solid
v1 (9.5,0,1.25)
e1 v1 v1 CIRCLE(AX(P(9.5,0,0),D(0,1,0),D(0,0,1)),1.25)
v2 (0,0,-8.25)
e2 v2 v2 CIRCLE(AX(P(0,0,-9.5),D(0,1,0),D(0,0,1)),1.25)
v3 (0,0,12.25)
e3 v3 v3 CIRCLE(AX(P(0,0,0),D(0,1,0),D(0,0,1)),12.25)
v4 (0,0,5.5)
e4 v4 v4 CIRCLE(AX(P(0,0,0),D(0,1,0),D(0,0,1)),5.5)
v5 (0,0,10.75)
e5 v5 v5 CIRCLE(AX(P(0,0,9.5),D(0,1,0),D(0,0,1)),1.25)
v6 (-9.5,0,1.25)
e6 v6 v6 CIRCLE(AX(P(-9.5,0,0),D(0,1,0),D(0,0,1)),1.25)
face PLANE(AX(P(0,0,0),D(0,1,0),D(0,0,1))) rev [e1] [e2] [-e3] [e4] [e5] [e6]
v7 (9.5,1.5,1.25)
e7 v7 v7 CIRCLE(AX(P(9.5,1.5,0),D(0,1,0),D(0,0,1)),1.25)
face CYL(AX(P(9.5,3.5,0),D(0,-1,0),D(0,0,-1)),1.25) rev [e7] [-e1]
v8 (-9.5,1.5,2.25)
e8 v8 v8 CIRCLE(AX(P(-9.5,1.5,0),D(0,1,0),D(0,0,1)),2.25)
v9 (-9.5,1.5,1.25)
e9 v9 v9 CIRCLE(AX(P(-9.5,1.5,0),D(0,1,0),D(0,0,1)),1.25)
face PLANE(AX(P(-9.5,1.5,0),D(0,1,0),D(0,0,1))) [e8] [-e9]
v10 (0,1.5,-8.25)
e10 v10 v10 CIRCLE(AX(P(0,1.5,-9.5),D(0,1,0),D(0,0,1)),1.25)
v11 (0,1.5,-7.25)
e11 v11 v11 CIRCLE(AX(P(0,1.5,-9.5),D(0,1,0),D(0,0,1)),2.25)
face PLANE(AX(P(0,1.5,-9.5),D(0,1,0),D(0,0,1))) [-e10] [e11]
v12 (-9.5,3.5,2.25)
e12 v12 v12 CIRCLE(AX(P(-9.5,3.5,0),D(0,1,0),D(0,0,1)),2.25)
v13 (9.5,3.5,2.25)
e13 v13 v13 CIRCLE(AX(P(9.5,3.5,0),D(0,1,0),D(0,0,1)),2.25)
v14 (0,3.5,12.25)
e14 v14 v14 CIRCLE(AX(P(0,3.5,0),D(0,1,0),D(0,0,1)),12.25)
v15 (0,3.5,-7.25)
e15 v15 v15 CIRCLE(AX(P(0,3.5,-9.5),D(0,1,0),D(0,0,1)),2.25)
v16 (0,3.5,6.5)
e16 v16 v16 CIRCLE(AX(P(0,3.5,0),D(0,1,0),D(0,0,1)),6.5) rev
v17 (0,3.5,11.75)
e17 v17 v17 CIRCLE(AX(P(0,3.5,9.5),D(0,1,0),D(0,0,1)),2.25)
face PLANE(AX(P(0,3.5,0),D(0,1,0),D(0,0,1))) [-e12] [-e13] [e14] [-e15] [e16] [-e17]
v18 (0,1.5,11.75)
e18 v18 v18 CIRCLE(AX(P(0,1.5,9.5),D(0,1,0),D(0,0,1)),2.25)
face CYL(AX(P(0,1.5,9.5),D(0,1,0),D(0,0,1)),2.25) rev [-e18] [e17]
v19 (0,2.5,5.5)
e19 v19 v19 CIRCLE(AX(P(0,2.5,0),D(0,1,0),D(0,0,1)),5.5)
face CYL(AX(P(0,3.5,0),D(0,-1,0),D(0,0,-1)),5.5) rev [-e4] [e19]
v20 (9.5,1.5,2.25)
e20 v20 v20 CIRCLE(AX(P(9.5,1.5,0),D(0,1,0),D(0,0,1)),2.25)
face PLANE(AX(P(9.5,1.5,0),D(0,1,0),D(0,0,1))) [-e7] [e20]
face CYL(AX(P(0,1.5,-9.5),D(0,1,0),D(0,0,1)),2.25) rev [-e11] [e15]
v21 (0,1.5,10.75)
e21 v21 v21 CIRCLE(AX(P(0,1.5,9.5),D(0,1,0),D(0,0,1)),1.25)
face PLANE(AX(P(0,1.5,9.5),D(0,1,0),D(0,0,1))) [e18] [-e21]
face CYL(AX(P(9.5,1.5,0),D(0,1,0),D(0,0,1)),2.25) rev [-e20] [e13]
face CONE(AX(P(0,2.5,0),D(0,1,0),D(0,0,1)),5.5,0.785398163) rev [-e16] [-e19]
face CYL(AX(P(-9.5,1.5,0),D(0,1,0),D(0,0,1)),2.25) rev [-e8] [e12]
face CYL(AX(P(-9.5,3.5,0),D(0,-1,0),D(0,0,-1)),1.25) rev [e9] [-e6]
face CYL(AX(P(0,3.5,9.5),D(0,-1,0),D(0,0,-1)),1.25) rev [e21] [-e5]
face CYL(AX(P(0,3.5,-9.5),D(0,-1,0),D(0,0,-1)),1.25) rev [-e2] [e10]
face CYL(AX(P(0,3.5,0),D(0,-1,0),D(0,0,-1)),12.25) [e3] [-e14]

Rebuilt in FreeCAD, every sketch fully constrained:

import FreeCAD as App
import Part
import Sketcher
from FreeCAD import Vector


def edges_at(feature, points):
    """Names of the edges that pass closest to the given points."""
    edges = feature.Shape.Edges
    near = lambda p: min(range(len(edges)), key=lambda i: edges[i].distToShape(Part.Vertex(*p))[0])
    return sorted({f"Edge{near(p) + 1}" for p in points})

doc = App.newDocument("Part")
body = doc.addObject("PartDesign::Body", "Body")

# Sketch on XZ plane
sketch1 = body.newObject("Sketcher::SketchObject", "Sketch")
sketch1.AttachmentSupport = (doc.getObject("XZ_Plane"), [""])
sketch1.MapMode = "FlatFace"
sketch1.addGeometry(Part.Circle(Vector(0, 0, 0), Vector(0, 0, 1), 12.2), False)
sketch1.addGeometry(Part.Circle(Vector(0, -9.5, 0), Vector(0, 0, 1), 1.2), False)
sketch1.addGeometry(Part.Circle(Vector(-9.5, 0, 0), Vector(0, 0, 1), 1.2), False)
sketch1.addGeometry(Part.Circle(Vector(9.5, 0, 0), Vector(0, 0, 1), 1.2), False)
sketch1.addGeometry(Part.Circle(Vector(0, 0, 0), Vector(0, 0, 1), 5.5), False)
sketch1.addGeometry(Part.Circle(Vector(0, 9.5, 0), Vector(0, 0, 1), 1.2), False)
sketch1.addConstraint(Sketcher.Constraint("Coincident", 0, 3, -1, 1))
sketch1.addConstraint(Sketcher.Constraint("Coincident", 4, 3, -1, 1))
sketch1.addConstraint(Sketcher.Constraint("Equal", 1, 2))
sketch1.addConstraint(Sketcher.Constraint("Equal", 2, 3))
sketch1.addConstraint(Sketcher.Constraint("Equal", 3, 5))
sketch1.addConstraint(Sketcher.Constraint("Symmetric", 2, 3, 3, 3, -1, 1))
sketch1.addConstraint(Sketcher.Constraint("Symmetric", 1, 3, 5, 3, -1, 1))
sketch1.addConstraint(Sketcher.Constraint("PointOnObject", 1, 3, -2))
sketch1.addConstraint(Sketcher.Constraint("PointOnObject", 2, 3, -1))
sketch1.addConstraint(Sketcher.Constraint("Diameter", 4, 11.0))
sketch1.addConstraint(Sketcher.Constraint("Diameter", 0, 24.5))
sketch1.addConstraint(Sketcher.Constraint("Diameter", 1, 2.5))
sketch1.addConstraint(Sketcher.Constraint("DistanceX", 2, 3, 3, 3, 19.0))
sketch1.addConstraint(Sketcher.Constraint("DistanceY", 1, 3, 5, 3, 19.0))
pad1 = body.newObject("PartDesign::Pad", "Pad")
pad1.Profile = sketch1
pad1.Length = 3.5
pad1.Reversed = True

# Sketch on XZ plane
sketch2 = body.newObject("Sketcher::SketchObject", "Sketch001")
sketch2.AttachmentSupport = (doc.getObject("XZ_Plane"), [""])
sketch2.MapMode = "FlatFace"
sketch2.AttachmentOffset = App.Placement(Vector(0, 0, -3.5), App.Rotation())
sketch2.addGeometry(Part.Circle(Vector(0, -9.5, 0), Vector(0, 0, 1), 2.2), False)
sketch2.addGeometry(Part.Circle(Vector(9.5, 0, 0), Vector(0, 0, 1), 2.2), False)
sketch2.addGeometry(Part.Circle(Vector(0, 9.5, 0), Vector(0, 0, 1), 2.2), False)
sketch2.addGeometry(Part.Circle(Vector(-9.5, 0, 0), Vector(0, 0, 1), 2.2), False)
sketch2.addConstraint(Sketcher.Constraint("Equal", 0, 1))
sketch2.addConstraint(Sketcher.Constraint("Equal", 1, 2))
sketch2.addConstraint(Sketcher.Constraint("Equal", 2, 3))
sketch2.addConstraint(Sketcher.Constraint("Symmetric", 0, 3, 2, 3, -1, 1))
sketch2.addConstraint(Sketcher.Constraint("Symmetric", 1, 3, 3, 3, -1, 1))
sketch2.addConstraint(Sketcher.Constraint("PointOnObject", 0, 3, -2))
sketch2.addConstraint(Sketcher.Constraint("PointOnObject", 1, 3, -1))
sketch2.addConstraint(Sketcher.Constraint("Diameter", 0, 4.5))
sketch2.addConstraint(Sketcher.Constraint("DistanceY", 0, 3, 2, 3, 19.0))
sketch2.addConstraint(Sketcher.Constraint("DistanceX", 3, 3, 1, 3, 19.0))
pocket1 = body.newObject("PartDesign::Pocket", "Pocket")
pocket1.Profile = sketch2
pocket1.Length = 2
pocket1.Reversed = True
doc.recompute()

chamfer = body.newObject("PartDesign::Chamfer", "Chamfer")
chamfer.Base = (pocket1, edges_at(pocket1, [(0, 3.5, -5.5)]))
chamfer.Size = 1

doc.recompute()
